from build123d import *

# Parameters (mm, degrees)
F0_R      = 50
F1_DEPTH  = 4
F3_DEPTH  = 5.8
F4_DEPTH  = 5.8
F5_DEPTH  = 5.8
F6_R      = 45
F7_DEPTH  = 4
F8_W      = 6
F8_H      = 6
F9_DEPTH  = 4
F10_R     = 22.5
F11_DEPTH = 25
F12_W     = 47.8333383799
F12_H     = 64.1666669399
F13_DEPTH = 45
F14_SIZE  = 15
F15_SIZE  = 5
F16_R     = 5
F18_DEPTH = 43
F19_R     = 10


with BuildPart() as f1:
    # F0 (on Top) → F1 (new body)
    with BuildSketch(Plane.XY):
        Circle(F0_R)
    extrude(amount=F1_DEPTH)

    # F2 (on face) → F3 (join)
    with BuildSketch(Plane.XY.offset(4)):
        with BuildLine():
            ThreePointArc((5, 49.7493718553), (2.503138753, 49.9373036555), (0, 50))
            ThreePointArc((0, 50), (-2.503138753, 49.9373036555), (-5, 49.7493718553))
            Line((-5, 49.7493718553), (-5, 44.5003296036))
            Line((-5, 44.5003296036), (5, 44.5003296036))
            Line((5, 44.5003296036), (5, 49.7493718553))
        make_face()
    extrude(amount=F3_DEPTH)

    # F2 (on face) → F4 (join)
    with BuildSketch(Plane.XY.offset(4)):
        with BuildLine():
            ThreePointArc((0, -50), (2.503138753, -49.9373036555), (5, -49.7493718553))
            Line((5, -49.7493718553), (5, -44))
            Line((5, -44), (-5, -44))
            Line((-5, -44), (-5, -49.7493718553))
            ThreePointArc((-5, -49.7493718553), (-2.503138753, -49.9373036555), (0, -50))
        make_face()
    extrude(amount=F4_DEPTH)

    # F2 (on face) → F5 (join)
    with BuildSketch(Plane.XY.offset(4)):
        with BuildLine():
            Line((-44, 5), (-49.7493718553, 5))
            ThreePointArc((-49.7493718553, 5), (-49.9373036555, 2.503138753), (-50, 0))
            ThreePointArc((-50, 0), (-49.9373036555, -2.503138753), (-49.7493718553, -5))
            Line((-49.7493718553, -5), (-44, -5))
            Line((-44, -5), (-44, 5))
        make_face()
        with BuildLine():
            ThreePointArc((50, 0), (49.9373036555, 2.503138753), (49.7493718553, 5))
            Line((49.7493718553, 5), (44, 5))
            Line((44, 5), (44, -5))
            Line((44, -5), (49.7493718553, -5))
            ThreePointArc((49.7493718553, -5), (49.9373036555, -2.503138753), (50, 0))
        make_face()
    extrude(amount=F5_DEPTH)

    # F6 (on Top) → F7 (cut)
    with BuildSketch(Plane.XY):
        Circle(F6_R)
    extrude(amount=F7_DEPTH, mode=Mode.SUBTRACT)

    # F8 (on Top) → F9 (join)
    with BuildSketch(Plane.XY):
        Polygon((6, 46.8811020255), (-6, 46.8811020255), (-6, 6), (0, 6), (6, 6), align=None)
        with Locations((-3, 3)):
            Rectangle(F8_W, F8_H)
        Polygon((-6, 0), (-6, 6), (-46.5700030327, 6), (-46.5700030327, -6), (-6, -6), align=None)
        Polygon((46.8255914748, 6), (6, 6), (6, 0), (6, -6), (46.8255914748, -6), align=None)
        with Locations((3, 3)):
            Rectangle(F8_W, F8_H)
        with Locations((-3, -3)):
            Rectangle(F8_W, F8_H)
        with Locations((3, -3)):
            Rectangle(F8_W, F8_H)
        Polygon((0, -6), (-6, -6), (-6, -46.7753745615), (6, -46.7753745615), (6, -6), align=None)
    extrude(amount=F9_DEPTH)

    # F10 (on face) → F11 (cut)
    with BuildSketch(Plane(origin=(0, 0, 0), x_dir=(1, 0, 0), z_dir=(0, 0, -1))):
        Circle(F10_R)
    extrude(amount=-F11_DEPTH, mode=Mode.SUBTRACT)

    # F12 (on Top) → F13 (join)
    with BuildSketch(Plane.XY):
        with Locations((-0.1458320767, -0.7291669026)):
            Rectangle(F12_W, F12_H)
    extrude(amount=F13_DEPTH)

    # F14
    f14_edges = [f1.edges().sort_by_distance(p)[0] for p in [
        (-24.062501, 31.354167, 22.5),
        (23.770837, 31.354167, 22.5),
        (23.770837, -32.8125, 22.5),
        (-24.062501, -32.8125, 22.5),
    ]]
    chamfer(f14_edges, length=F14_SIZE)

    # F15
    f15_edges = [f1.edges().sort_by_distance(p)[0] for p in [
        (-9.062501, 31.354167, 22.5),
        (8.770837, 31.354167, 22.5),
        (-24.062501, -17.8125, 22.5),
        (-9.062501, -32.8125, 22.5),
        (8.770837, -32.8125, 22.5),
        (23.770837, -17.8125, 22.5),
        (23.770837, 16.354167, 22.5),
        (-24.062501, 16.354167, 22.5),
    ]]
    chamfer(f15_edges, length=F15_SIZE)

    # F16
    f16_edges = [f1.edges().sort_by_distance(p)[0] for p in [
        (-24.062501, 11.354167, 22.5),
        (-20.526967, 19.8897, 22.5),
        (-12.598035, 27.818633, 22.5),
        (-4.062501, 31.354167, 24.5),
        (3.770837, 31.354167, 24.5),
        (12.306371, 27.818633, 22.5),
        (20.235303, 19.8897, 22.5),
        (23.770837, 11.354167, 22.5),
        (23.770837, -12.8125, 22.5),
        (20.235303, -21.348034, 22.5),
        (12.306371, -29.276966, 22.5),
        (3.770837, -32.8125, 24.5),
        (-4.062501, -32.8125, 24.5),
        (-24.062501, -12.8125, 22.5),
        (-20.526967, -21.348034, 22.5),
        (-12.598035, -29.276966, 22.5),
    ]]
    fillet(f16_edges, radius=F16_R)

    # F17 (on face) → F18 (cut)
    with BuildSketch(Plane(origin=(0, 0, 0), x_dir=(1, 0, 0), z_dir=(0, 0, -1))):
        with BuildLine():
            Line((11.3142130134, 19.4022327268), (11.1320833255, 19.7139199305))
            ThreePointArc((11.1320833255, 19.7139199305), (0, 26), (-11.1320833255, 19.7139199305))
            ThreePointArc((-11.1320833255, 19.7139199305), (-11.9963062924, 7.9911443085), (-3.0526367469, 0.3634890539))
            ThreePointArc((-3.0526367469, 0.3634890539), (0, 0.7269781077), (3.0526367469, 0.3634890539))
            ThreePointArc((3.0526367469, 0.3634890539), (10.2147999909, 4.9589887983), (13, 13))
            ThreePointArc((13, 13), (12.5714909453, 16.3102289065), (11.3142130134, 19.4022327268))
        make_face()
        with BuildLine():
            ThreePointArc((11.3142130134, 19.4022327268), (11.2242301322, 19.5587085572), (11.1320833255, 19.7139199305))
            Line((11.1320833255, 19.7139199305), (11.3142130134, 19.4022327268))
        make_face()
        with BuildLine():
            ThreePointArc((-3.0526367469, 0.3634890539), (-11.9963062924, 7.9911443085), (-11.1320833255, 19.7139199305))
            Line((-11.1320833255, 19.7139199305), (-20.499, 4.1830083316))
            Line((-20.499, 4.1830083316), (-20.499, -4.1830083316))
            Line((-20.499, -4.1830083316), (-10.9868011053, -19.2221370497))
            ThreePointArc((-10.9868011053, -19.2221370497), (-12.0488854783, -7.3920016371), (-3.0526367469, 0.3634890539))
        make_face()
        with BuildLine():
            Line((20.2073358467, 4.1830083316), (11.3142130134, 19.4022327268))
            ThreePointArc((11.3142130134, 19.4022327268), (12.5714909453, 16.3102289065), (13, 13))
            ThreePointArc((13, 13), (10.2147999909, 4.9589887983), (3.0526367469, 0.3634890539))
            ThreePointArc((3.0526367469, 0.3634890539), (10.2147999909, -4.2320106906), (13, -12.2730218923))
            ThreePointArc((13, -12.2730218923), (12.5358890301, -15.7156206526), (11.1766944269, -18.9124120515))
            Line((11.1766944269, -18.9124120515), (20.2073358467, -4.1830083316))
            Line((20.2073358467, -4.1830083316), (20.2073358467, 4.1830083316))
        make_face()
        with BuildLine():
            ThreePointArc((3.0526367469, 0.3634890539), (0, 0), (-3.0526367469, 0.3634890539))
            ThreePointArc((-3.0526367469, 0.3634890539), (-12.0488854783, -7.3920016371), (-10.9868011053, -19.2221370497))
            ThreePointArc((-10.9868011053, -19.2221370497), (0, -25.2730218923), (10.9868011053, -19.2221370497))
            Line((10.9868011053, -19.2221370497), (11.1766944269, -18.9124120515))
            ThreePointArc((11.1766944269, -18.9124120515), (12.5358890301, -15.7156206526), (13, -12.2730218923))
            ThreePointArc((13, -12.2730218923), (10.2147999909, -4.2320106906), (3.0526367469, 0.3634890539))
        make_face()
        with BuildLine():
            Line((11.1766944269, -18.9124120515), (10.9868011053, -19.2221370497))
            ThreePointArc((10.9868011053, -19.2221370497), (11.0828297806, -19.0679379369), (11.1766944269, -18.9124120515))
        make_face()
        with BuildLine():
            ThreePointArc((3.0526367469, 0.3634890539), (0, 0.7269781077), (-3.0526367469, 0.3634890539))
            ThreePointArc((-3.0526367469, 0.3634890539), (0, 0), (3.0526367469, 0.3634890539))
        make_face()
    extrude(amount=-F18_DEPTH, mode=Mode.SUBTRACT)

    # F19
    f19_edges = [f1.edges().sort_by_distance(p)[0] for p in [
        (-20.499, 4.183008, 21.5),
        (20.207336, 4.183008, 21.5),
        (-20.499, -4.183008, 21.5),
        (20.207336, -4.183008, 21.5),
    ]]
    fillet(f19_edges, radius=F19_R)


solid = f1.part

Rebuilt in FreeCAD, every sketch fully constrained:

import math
import FreeCAD as App
import Part
import Sketcher
from FreeCAD import Vector
Q = App.Units.Quantity


def edges_at(feature, points):
    """Names of the edges that pass closest to the given points."""
    edges = feature.Shape.Edges
    near = lambda p: min(range(len(edges)), key=lambda i: edges[i].distToShape(Part.Vertex(*p))[0])
    return sorted({f"Edge{near(p) + 1}" for p in points})


def add_polygon(sketch, points):
    """Adds a closed chain of lines whose ends are joined by coincident constraints."""
    first, n = sketch.GeometryCount, len(points)
    for a, b in zip(points, points[1:] + points[:1]):
        sketch.addGeometry(Part.LineSegment(App.Vector(*a, 0), App.Vector(*b, 0)), False)
    for i in range(n):
        sketch.addConstraint(Sketcher.Constraint("Coincident", first + i, 2, first + (i + 1) % n, 1))

doc = App.newDocument("Part")
body = doc.addObject("PartDesign::Body", "Body")

# Sketch on XY plane
sketch1 = doc.addObject("Sketcher::SketchObject", "Sketch")
body.addObject(sketch1)
sketch1.AttachmentSupport = (doc.XY_Plane, [""])
sketch1.MapMode = "FlatFace"
sketch1.addGeometry(Part.Circle(Vector(0, 0, 0), Vector(0, 0, 1), 50), False)
sketch1.addConstraint([
    Sketcher.Constraint("Coincident", 0, 3, -1, 1),
    Sketcher.Constraint("Diameter", 0, Q("100 mm")),
])
pad1 = doc.addObject("PartDesign::Pad", "Pad")
body.addObject(pad1)
pad1.Profile = sketch1
pad1.Length = 4

# Sketch on XY plane
sketch2 = doc.addObject("Sketcher::SketchObject", "Sketch001")
body.addObject(sketch2)
sketch2.AttachmentSupport = (doc.XY_Plane, [""])
sketch2.MapMode = "FlatFace"
sketch2.AttachmentOffset = App.Placement(Vector(0, 0, 4), App.Rotation())
sketch2.addGeometry([
    Part.ArcOfCircle(Part.Circle(Vector(0, 0, 0), Vector(0, 0, 1), 50), math.radians(84.26083), math.radians(90)),  # 0
    Part.ArcOfCircle(Part.Circle(Vector(0, 0, 0), Vector(0, 0, 1), 50), math.radians(90), math.radians(95.73917)),  # 1
    Part.LineSegment(Vector(-5, 49.749372, 0), Vector(-5, 44.50033, 0)),  # 2
    Part.LineSegment(Vector(-5, 44.50033, 0), Vector(5, 44.50033, 0)),  # 3
    Part.LineSegment(Vector(5, 44.50033, 0), Vector(5, 49.749372, 0)),  # 4
], False)
sketch2.addConstraint([
    Sketcher.Constraint("Tangent", 0, 2, 1, 1),
    Sketcher.Constraint("Coincident", 1, 2, 2, 1),
    Sketcher.Constraint("Coincident", 2, 2, 3, 1),
    Sketcher.Constraint("Coincident", 3, 2, 4, 1),
    Sketcher.Constraint("Coincident", 4, 2, 0, 1),
    Sketcher.Constraint("Vertical", 2),
    Sketcher.Constraint("Horizontal", 3),
    Sketcher.Constraint("Vertical", 4),
    Sketcher.Constraint("Coincident", 0, 3, -1, 1),
    Sketcher.Constraint("Equal", 0, 1),
    Sketcher.Constraint("PointOnObject", 0, 2, -2),
    Sketcher.Constraint("Horizontal", 1, 2, 4, 2),
    Sketcher.Constraint("Radius", 0, Q("50 mm")),
    Sketcher.Constraint("DistanceX", 3, 1, 3, 2, Q("10 mm")),
    Sketcher.Constraint("DistanceY", 2, 2, 2, 1, Q("5.249042 mm")),
])
pad2 = doc.addObject("PartDesign::Pad", "Pad001")
body.addObject(pad2)
pad2.Profile = sketch2
pad2.Length = 5.8

# Sketch on XY plane
sketch3 = doc.addObject("Sketcher::SketchObject", "Sketch002")
body.addObject(sketch3)
sketch3.AttachmentSupport = (doc.XY_Plane, [""])
sketch3.MapMode = "FlatFace"
sketch3.AttachmentOffset = App.Placement(Vector(0, 0, 4), App.Rotation())
sketch3.addGeometry([
    Part.ArcOfCircle(Part.Circle(Vector(0, 0, 0), Vector(0, 0, 1), 50), math.radians(-90), math.radians(-84.26083)),  # 0
    Part.LineSegment(Vector(5, -49.749372, 0), Vector(5, -44, 0)),  # 1
    Part.LineSegment(Vector(5, -44, 0), Vector(-5, -44, 0)),  # 2
    Part.LineSegment(Vector(-5, -44, 0), Vector(-5, -49.749372, 0)),  # 3
    Part.ArcOfCircle(Part.Circle(Vector(0, 0, 0), Vector(0, 0, 1), 50), math.radians(-95.73917), math.radians(-90)),  # 4
], False)
sketch3.addConstraint([
    Sketcher.Constraint("Coincident", 0, 2, 1, 1),
    Sketcher.Constraint("Coincident", 1, 2, 2, 1),
    Sketcher.Constraint("Coincident", 2, 2, 3, 1),
    Sketcher.Constraint("Coincident", 3, 2, 4, 1),
    Sketcher.Constraint("Tangent", 4, 2, 0, 1),
    Sketcher.Constraint("Vertical", 1),
    Sketcher.Constraint("Horizontal", 2),
    Sketcher.Constraint("Vertical", 3),
    Sketcher.Constraint("Coincident", 0, 3, -1, 1),
    Sketcher.Constraint("Equal", 0, 4),
    Sketcher.Constraint("PointOnObject", 4, 2, -2),
    Sketcher.Constraint("Horizontal", 0, 2, 3, 2),
    Sketcher.Constraint("Radius", 0, Q("50 mm")),
    Sketcher.Constraint("DistanceX", 2, 2, 2, 1, Q("10 mm")),
    Sketcher.Constraint("DistanceY", 1, 2, -1, 1, Q("44 mm")),
])
pad3 = doc.addObject("PartDesign::Pad", "Pad002")
body.addObject(pad3)
pad3.Profile = sketch3
pad3.Length = 5.8

# Sketch on XY plane
sketch4 = doc.addObject("Sketcher::SketchObject", "Sketch003")
body.addObject(sketch4)
sketch4.AttachmentSupport = (doc.XY_Plane, [""])
sketch4.MapMode = "FlatFace"
sketch4.AttachmentOffset = App.Placement(Vector(0, 0, 4), App.Rotation())
sketch4.addGeometry([
    Part.LineSegment(Vector(-44, 5, 0), Vector(-49.749372, 5, 0)),  # 0
    Part.ArcOfCircle(Part.Circle(Vector(0, 0, 0), Vector(0, 0, 1), 50), math.radians(174.26083), math.radians(180)),  # 1
    Part.ArcOfCircle(Part.Circle(Vector(0, 0, 0), Vector(0, 0, 1), 50), math.radians(180), math.radians(185.73917)),  # 2
    Part.LineSegment(Vector(-49.749372, -5, 0), Vector(-44, -5, 0)),  # 3
    Part.LineSegment(Vector(-44, -5, 0), Vector(-44, 5, 0)),  # 4
    Part.ArcOfCircle(Part.Circle(Vector(0, 0, 0), Vector(0, 0, 1), 50), math.radians(0), math.radians(5.73917)),  # 5
    Part.LineSegment(Vector(49.749372, 5, 0), Vector(44, 5, 0)),  # 6
    Part.LineSegment(Vector(44, 5, 0), Vector(44, -5, 0)),  # 7
    Part.LineSegment(Vector(44, -5, 0), Vector(49.749372, -5, 0)),  # 8
    Part.ArcOfCircle(Part.Circle(Vector(0, 0, 0), Vector(0, 0, 1), 50), math.radians(-5.73917), math.radians(0)),  # 9
], False)
sketch4.addConstraint([
    Sketcher.Constraint("Coincident", 0, 2, 1, 1),
    Sketcher.Constraint("Tangent", 1, 2, 2, 1),
    Sketcher.Constraint("Coincident", 2, 2, 3, 1),
    Sketcher.Constraint("Coincident", 3, 2, 4, 1),
    Sketcher.Constraint("Coincident", 4, 2, 0, 1),
    Sketcher.Constraint("Coincident", 5, 2, 6, 1),
    Sketcher.Constraint("Coincident", 6, 2, 7, 1),
    Sketcher.Constraint("Coincident", 7, 2, 8, 1),
    Sketcher.Constraint("Coincident", 8, 2, 9, 1),
    Sketcher.Constraint("Tangent", 9, 2, 5, 1),
    Sketcher.Constraint("Horizontal", 0),
    Sketcher.Constraint("Horizontal", 3),
    Sketcher.Constraint("Vertical", 4),
    Sketcher.Constraint("Horizontal", 6),
    Sketcher.Constraint("Vertical", 7),
    Sketcher.Constraint("Horizontal", 8),
    Sketcher.Constraint("Coincident", 1, 3, -1, 1),
    Sketcher.Constraint("Coincident", 5, 3, -1, 1),
    Sketcher.Constraint("Equal", 1, 2),
    Sketcher.Constraint("Equal", 2, 5),
    Sketcher.Constraint("Equal", 5, 9),
    Sketcher.Constraint("Symmetric", 3, 2, 6, 2, -1, 1),
    Sketcher.Constraint("PointOnObject", 1, 2, -1),
    Sketcher.Constraint("PointOnObject", 9, 2, -1),
    Sketcher.Constraint("Horizontal", 4, 2, 5, 2),
    Sketcher.Constraint("Horizontal", 3, 2, 7, 2),
    Sketcher.Constraint("Radius", 1, Q("50 mm")),
    Sketcher.Constraint("DistanceY", 4, 1, 4, 2, Q("10 mm")),
    Sketcher.Constraint("DistanceX", 3, 2, -1, 1, Q("44 mm")),
])
pad4 = doc.addObject("PartDesign::Pad", "Pad003")
body.addObject(pad4)
pad4.Profile = sketch4
pad4.Length = 5.8

# Sketch on XY plane
sketch5 = doc.addObject("Sketcher::SketchObject", "Sketch004")
body.addObject(sketch5)
sketch5.AttachmentSupport = (doc.XY_Plane, [""])
sketch5.MapMode = "FlatFace"
sketch5.addGeometry(Part.Circle(Vector(0, 0, 0), Vector(0, 0, 1), 45), False)
sketch5.addConstraint([
    Sketcher.Constraint("Coincident", 0, 3, -1, 1),
    Sketcher.Constraint("Diameter", 0, Q("90 mm")),
])
pocket1 = doc.addObject("PartDesign::Pocket", "Pocket")
body.addObject(pocket1)
pocket1.Profile = sketch5
pocket1.Length = 4
pocket1.Reversed = True

# Sketch on XY plane
sketch6 = doc.addObject("Sketcher::SketchObject", "Sketch005")
body.addObject(sketch6)
sketch6.AttachmentSupport = (doc.XY_Plane, [""])
sketch6.MapMode = "FlatFace"
add_polygon(sketch6, [(6, 46.881102), (-6, 46.881102), (-6, 6), (-46.570003, 6), (-46.570003, -6), (-6, -6), (-6, -46.775375), (6, -46.775375), (6, -6), (46.825591, -6), (46.825591, 6), (6, 6)])  # lines 0-11
sketch6.addConstraint([
    Sketcher.Constraint("Horizontal", 0),
    Sketcher.Constraint("Vertical", 1),
    Sketcher.Constraint("Horizontal", 2),
    Sketcher.Constraint("Vertical", 3),
    Sketcher.Constraint("Horizontal", 4),
    Sketcher.Constraint("Vertical", 5),
    Sketcher.Constraint("Horizontal", 6),
    Sketcher.Constraint("Vertical", 7),
    Sketcher.Constraint("Horizontal", 8),
    Sketcher.Constraint("Vertical", 9),
    Sketcher.Constraint("Horizontal", 10),
    Sketcher.Constraint("Vertical", 11),
    Sketcher.Constraint("Symmetric", 1, 2, 7, 2, -1, 1),
    Sketcher.Constraint("Symmetric", 4, 2, 10, 2, -1, 1),
    Sketcher.Constraint("Symmetric", 4, 2, 7, 2, -2),
    Sketcher.Constraint("Equal", 6, 3),
    Sketcher.Constraint("DistanceX", 0, 2, 0, 1, Q("12 mm")),
    Sketcher.Constraint("DistanceX", 8, 1, 8, 2, Q("40.825591 mm")),
    Sketcher.Constraint("DistanceX", 2, 2, 2, 1, Q("40.570003 mm")),
    Sketcher.Constraint("DistanceY", 1, 2, 1, 1, Q("40.881102 mm")),
    Sketcher.Constraint("DistanceY", 5, 2, 5, 1, Q("40.775375 mm")),
])
pad5 = doc.addObject("PartDesign::Pad", "Pad004")
body.addObject(pad5)
pad5.Profile = sketch6
pad5.Length = 4

# Sketch on XY plane
sketch7 = doc.addObject("Sketcher::SketchObject", "Sketch006")
body.addObject(sketch7)
sketch7.AttachmentSupport = (doc.XY_Plane, [""])
sketch7.MapMode = "FlatFace"
sketch7.addGeometry(Part.Circle(Vector(0, 0, 0), Vector(0, 0, 1), 22.5), False)
sketch7.addConstraint([
    Sketcher.Constraint("Coincident", 0, 3, -1, 1),
    Sketcher.Constraint("Diameter", 0, Q("45 mm")),
])
pocket2 = doc.addObject("PartDesign::Pocket", "Pocket001")
body.addObject(pocket2)
pocket2.Profile = sketch7
pocket2.Length = 25
pocket2.Reversed = True

# Sketch on XY plane
sketch8 = doc.addObject("Sketcher::SketchObject", "Sketch007")
body.addObject(sketch8)
sketch8.AttachmentSupport = (doc.XY_Plane, [""])
sketch8.MapMode = "FlatFace"
add_polygon(sketch8, [(-24.062501, 31.354167), (-24.062501, -32.8125), (23.770837, -32.8125), (23.770837, 31.354167)])  # lines 0-3
sketch8.addConstraint([
    Sketcher.Constraint("Vertical", 0),
    Sketcher.Constraint("Horizontal", 1),
    Sketcher.Constraint("Vertical", 2),
    Sketcher.Constraint("Horizontal", 3),
    Sketcher.Constraint("DistanceX", 1, 1, 1, 2, Q("47.833338 mm")),
    Sketcher.Constraint("DistanceX", 0, 2, -1, 1, Q("24.062501 mm")),
    Sketcher.Constraint("DistanceY", 0, 2, -1, 1, Q("32.8125 mm")),
    Sketcher.Constraint("DistanceY", 0, 2, 0, 1, Q("64.166667 mm")),
])
pad6 = doc.addObject("PartDesign::Pad", "Pad005")
body.addObject(pad6)
pad6.Profile = sketch8
pad6.Length = 45
doc.recompute()

chamfer = doc.addObject("PartDesign::Chamfer", "Chamfer")
body.addObject(chamfer)
chamfer.Base = (pad6, edges_at(pad6, [
    (-24.063, 31.354, 22.5),
    (23.771, 31.354, 22.5),
    (23.771, -32.813, 22.5),
    (-24.063, -32.813, 22.5),
]))
chamfer.Size = 15
doc.recompute()

chamfer2 = doc.addObject("PartDesign::Chamfer", "Chamfer001")
body.addObject(chamfer2)
chamfer2.Base = (chamfer, edges_at(chamfer, [
    (-9.063, 31.354, 22.5),
    (8.771, 31.354, 22.5),
    (-24.063, -17.813, 22.5),
    (-9.063, -32.813, 22.5),
    (8.771, -32.813, 22.5),
    (23.771, -17.813, 22.5),
    (23.771, 16.354, 22.5),
    (-24.063, 16.354, 22.5),
]))
chamfer2.Size = 5
doc.recompute()

fillet = doc.addObject("PartDesign::Fillet", "Fillet")
body.addObject(fillet)
fillet.Base = (chamfer2, edges_at(chamfer2, [
    (-24.063, 11.354, 22.5),
    (-20.527, 19.89, 22.5),
    (-12.598, 27.819, 22.5),
    (-4.063, 31.354, 24.5),
    (3.771, 31.354, 24.5),
    (12.306, 27.819, 22.5),
    (20.235, 19.89, 22.5),
    (23.771, 11.354, 22.5),
    (23.771, -12.813, 22.5),
    (20.235, -21.348, 22.5),
    (12.306, -29.277, 22.5),
    (3.771, -32.813, 24.5),
    (-4.063, -32.813, 24.5),
    (-24.063, -12.813, 22.5),
    (-20.527, -21.348, 22.5),
    (-12.598, -29.277, 22.5),
]))
fillet.Radius = 5

# Sketch on XY plane
sketch9 = doc.addObject("Sketcher::SketchObject", "Sketch008")
body.addObject(sketch9)
sketch9.AttachmentSupport = (doc.XY_Plane, [""])
sketch9.MapMode = "FlatFace"
sketch9.addGeometry([
    Part.ArcOfCircle(Part.Circle(Vector(0, -13, 0), Vector(0, 0, 1), 13), math.radians(-148.905216), math.radians(-31.094784)),  # 0
    Part.LineSegment(Vector(-11.132083, -19.71392, 0), Vector(-20.499, -4.183008, 0)),  # 1
    Part.LineSegment(Vector(-20.499, -4.183008, 0), Vector(-20.499, 4.183008, 0)),  # 2
    Part.LineSegment(Vector(-20.499, 4.183008, 0), Vector(-10.986801, 19.222137, 0)),  # 3
    Part.ArcOfCircle(Part.Circle(Vector(0, 12.273022, 0), Vector(0, 0, 1), 13), math.radians(32.313217), math.radians(147.686783)),  # 4
    Part.ArcOfCircle(Part.Circle(Vector(0, 12.273022, 0), Vector(0, 0, 1), 13), math.radians(30.711955), math.radians(32.313217)),  # 5
    Part.LineSegment(Vector(11.176694, 18.912412, 0), Vector(20.207336, 4.183008, 0)),  # 6
    Part.LineSegment(Vector(20.207336, 4.183008, 0), Vector(20.207336, -4.183008, 0)),  # 7
    Part.LineSegment(Vector(20.207336, -4.183008, 0), Vector(11.314213, -19.402233, 0)),  # 8
    Part.ArcOfCircle(Part.Circle(Vector(0, -13, 0), Vector(0, 0, 1), 13), math.radians(-31.094784), math.radians(-29.503679)),  # 9
], False)
sketch9.addConstraint([
    Sketcher.Constraint("Tangent", 0, 1, 1, 1),
    Sketcher.Constraint("Coincident", 1, 2, 2, 1),
    Sketcher.Constraint("Coincident", 2, 2, 3, 1),
    Sketcher.Constraint("Tangent", 3, 2, 4, 2),
    Sketcher.Constraint("Tangent", 4, 1, 5, 2),
    Sketcher.Constraint("Coincident", 5, 1, 6, 1),
    Sketcher.Constraint("Coincident", 6, 2, 7, 1),
    Sketcher.Constraint("Coincident", 7, 2, 8, 1),
    Sketcher.Constraint("Coincident", 8, 2, 9, 2),
    Sketcher.Constraint("Tangent", 9, 1, 0, 2),
    Sketcher.Constraint("Vertical", 2),
    Sketcher.Constraint("Vertical", 7),
    Sketcher.Constraint("Equal", 0, 4),
    Sketcher.Constraint("Equal", 4, 5),
    Sketcher.Constraint("Equal", 5, 9),
    Sketcher.Constraint("Symmetric", 3, 2, 4, 1, -2),
    Sketcher.Constraint("Symmetric", 0, 1, 9, 1, -2),
    Sketcher.Constraint("Horizontal", 2, 2, 6, 2),
    Sketcher.Constraint("Horizontal", 1, 2, 7, 2),
    Sketcher.Constraint("Radius", 0, Q("13 mm")),
    Sketcher.Constraint("DistanceY", 0, 3, -1, 1, Q("13 mm")),
    Sketcher.Constraint("DistanceX", 1, 2, -1, 1, Q("20.499 mm")),
    Sketcher.Constraint("DistanceX", 3, 2, -1, 1, Q("10.986801 mm")),
    Sketcher.Constraint("Distance", 6, Q("17.277379 mm")),
    Sketcher.Constraint("DistanceY", 2, 1, 2, 2, Q("8.366017 mm")),
    Sketcher.Constraint("DistanceY", -1, 1, 4, 3, Q("12.273022 mm")),
    Sketcher.Constraint("DistanceY", 5, 3, 5, 1, Q("6.63939 mm")),
    Sketcher.Constraint("DistanceY", 8, 2, 6, 2, Q("23.585241 mm")),
])
pocket3 = doc.addObject("PartDesign::Pocket", "Pocket002")
body.addObject(pocket3)
pocket3.Profile = sketch9
pocket3.Length = 43
pocket3.Reversed = True
doc.recompute()

fillet2 = doc.addObject("PartDesign::Fillet", "Fillet001")
body.addObject(fillet2)
fillet2.Base = (pocket3, edges_at(pocket3, [
    (-20.499, 4.183, 21.5),
    (20.207, 4.183, 21.5),
    (-20.499, -4.183, 21.5),
    (20.207, -4.183, 21.5),
]))
fillet2.Radius = 10

doc.recompute()
